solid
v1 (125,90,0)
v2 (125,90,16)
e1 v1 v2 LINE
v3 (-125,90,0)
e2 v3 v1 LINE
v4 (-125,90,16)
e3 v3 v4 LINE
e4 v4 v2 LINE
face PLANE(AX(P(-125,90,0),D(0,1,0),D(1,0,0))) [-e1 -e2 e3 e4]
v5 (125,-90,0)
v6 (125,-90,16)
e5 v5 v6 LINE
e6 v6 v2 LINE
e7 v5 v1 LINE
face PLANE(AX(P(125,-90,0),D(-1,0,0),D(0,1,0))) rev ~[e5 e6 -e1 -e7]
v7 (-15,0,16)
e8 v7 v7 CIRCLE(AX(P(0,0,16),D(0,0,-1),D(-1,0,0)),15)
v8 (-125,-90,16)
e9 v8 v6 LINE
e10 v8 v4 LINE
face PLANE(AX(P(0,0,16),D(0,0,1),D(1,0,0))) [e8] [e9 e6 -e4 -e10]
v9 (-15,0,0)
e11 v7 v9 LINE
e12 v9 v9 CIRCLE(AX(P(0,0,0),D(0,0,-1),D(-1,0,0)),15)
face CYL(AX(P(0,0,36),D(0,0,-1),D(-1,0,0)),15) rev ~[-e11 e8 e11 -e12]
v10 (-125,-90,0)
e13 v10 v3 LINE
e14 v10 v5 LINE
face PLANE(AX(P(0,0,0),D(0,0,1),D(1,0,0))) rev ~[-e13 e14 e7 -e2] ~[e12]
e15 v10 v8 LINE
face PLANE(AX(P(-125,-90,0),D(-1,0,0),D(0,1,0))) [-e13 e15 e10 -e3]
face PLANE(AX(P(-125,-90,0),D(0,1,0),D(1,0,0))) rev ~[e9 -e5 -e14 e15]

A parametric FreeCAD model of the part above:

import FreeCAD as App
import Part
import Sketcher
Q = App.Units.Quantity

doc = App.newDocument("Part")
body = doc.addObject("PartDesign::Body", "Body")

sketch1 = doc.addObject("Sketcher::SketchObject", "Sketch")
body.addObject(sketch1)
sketch1.AttachmentSupport = (doc.XY_Plane, [""])
sketch1.MapMode = "FlatFace"
sketch1.addGeometry(Part.LineSegment(App.Vector(-125, 90, 0), App.Vector(-125, -90, 0)), False)
sketch1.addGeometry(Part.LineSegment(App.Vector(-125, -90, 0), App.Vector(125, -90, 0)), False)
sketch1.addGeometry(Part.LineSegment(App.Vector(125, -90, 0), App.Vector(125, 90, 0)), False)
sketch1.addGeometry(Part.LineSegment(App.Vector(125, 90, 0), App.Vector(-125, 90, 0)), False)
sketch1.addConstraint(Sketcher.Constraint("Coincident", 0, 2, 1, 1))
sketch1.addConstraint(Sketcher.Constraint("Coincident", 1, 2, 2, 1))
sketch1.addConstraint(Sketcher.Constraint("Coincident", 2, 2, 3, 1))
sketch1.addConstraint(Sketcher.Constraint("Coincident", 3, 2, 0, 1))
sketch1.addConstraint(Sketcher.Constraint("Vertical", 0))
sketch1.addConstraint(Sketcher.Constraint("Horizontal", 1))
sketch1.addConstraint(Sketcher.Constraint("Vertical", 2))
sketch1.addConstraint(Sketcher.Constraint("Horizontal", 3))
sketch1.addConstraint(Sketcher.Constraint("Symmetric", 0, 2, 2, 2, -1, 1))
sketch1.addConstraint(Sketcher.Constraint("DistanceX", 1, 1, 1, 2, Q("250 mm")))
sketch1.addConstraint(Sketcher.Constraint("DistanceY", 0, 2, 0, 1, Q("180 mm")))
pad1 = doc.addObject("PartDesign::Pad", "Pad")
body.addObject(pad1)
pad1.Profile = sketch1
pad1.Length = 16

sketch2 = doc.addObject("Sketcher::SketchObject", "Sketch001")
body.addObject(sketch2)
sketch2.AttachmentSupport = (doc.XY_Plane, [""])
sketch2.MapMode = "FlatFace"
sketch2.AttachmentOffset = App.Placement(App.Vector(0, 0, 16), App.Rotation())
sketch2.addGeometry(Part.Circle(App.Vector(0, 0, 0), App.Vector(0, 0, 1), 15), False)
sketch2.addConstraint(Sketcher.Constraint("Coincident", 0, 3, -1, 1))
sketch2.addConstraint(Sketcher.Constraint("Diameter", 0, Q("30 mm")))
doc.recompute()
hole = doc.addObject("PartDesign::Hole", "Hole")
body.addObject(hole)
hole.Profile = sketch2
hole.ThreadType = "None"
hole.Diameter = 30
hole.DepthType = "Dimension"
hole.Depth = 20
hole.DrillPoint = "Angled"
hole.DrillPointAngle = 118

doc.recompute()
